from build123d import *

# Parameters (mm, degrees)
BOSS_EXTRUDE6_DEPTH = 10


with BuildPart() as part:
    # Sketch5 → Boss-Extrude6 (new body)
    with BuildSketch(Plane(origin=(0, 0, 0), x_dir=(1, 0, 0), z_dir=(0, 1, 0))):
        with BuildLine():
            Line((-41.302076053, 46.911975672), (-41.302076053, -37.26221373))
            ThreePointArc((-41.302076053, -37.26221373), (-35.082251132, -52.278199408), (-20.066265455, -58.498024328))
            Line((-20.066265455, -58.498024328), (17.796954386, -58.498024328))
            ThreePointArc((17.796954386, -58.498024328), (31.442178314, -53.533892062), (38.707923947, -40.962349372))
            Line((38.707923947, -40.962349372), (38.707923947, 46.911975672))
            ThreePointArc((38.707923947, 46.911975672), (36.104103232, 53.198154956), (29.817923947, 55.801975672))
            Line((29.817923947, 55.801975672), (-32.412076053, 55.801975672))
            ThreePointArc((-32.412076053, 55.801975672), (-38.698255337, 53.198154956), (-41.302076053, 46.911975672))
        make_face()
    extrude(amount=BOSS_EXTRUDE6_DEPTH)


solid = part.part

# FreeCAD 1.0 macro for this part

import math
import FreeCAD as App
import Part
import Sketcher
from FreeCAD import Vector
Q = App.Units.Quantity

doc = App.newDocument("Part")
body = doc.addObject("PartDesign::Body", "Body")

sketch1 = body.newObject("Sketcher::SketchObject", "Sketch")
sketch1.AttachmentSupport = (doc.getObject("XZ_Plane"), [""])
sketch1.MapMode = "FlatFace"
sketch1.addGeometry([
    Part.LineSegment(Vector(-41, -47, 0), Vector(-41, 37, 0)),
    Part.ArcOfCircle(Part.Circle(Vector(-20, 37, 0), Vector(0, 0, 1), 21), math.radians(90), math.radians(180)),
    Part.LineSegment(Vector(-20, 58, 0), Vector(18, 58, 0)),
    Part.ArcOfCircle(Part.Circle(Vector(18, 37, 0), Vector(0, 0, 1), 21), math.radians(10), math.radians(90)),
    Part.LineSegment(Vector(39, 41, 0), Vector(39, -47, 0)),
    Part.ArcOfCircle(Part.Circle(Vector(30, -47, 0), Vector(0, 0, 1), 9), math.radians(-90), math.radians(0)),
    Part.LineSegment(Vector(30, -56, 0), Vector(-32, -56, 0)),
    Part.ArcOfCircle(Part.Circle(Vector(-32, -47, 0), Vector(0, 0, 1), 9), math.radians(-180), math.radians(-90)),
], False)
sketch1.addConstraint([
    Sketcher.Constraint("Tangent", 0, 2, 1, 2),
    Sketcher.Constraint("Tangent", 1, 1, 2, 1),
    Sketcher.Constraint("Tangent", 2, 2, 3, 2),
    Sketcher.Constraint("Coincident", 3, 1, 4, 1),
    Sketcher.Constraint("Tangent", 4, 2, 5, 2),
    Sketcher.Constraint("Tangent", 5, 1, 6, 1),
    Sketcher.Constraint("Tangent", 6, 2, 7, 2),
    Sketcher.Constraint("Tangent", 7, 1, 0, 1),
    Sketcher.Constraint("Vertical", 0),
    Sketcher.Constraint("Horizontal", 2),
    Sketcher.Constraint("Vertical", 4),
    Sketcher.Constraint("Horizontal", 6),
    Sketcher.Constraint("Equal", 1, 3),
    Sketcher.Constraint("Equal", 5, 7),
    Sketcher.Constraint("Radius", 5, Q("0.35 in")),
    Sketcher.Constraint("DistanceX", 6, 2, 6, 1, Q("2.45 in")),
    Sketcher.Constraint("DistanceY", 7, 3, 1, 1, Q("4.15 in")),
    Sketcher.Constraint("Radius", 1, 21.235811),
    Sketcher.Constraint("DistanceX", 2, 1, 2, 2, 37.86322),
    Sketcher.Constraint("DistanceY", -1, 1, 3, 1, 40.962349),
    Sketcher.Constraint("DistanceX", 1, 3, -1, 1, 20.066265),
])
pad1 = body.newObject("PartDesign::Pad", "Pad")
pad1.Profile = sketch1
pad1.Length = 10
pad1.Reversed = True

doc.recompute()
